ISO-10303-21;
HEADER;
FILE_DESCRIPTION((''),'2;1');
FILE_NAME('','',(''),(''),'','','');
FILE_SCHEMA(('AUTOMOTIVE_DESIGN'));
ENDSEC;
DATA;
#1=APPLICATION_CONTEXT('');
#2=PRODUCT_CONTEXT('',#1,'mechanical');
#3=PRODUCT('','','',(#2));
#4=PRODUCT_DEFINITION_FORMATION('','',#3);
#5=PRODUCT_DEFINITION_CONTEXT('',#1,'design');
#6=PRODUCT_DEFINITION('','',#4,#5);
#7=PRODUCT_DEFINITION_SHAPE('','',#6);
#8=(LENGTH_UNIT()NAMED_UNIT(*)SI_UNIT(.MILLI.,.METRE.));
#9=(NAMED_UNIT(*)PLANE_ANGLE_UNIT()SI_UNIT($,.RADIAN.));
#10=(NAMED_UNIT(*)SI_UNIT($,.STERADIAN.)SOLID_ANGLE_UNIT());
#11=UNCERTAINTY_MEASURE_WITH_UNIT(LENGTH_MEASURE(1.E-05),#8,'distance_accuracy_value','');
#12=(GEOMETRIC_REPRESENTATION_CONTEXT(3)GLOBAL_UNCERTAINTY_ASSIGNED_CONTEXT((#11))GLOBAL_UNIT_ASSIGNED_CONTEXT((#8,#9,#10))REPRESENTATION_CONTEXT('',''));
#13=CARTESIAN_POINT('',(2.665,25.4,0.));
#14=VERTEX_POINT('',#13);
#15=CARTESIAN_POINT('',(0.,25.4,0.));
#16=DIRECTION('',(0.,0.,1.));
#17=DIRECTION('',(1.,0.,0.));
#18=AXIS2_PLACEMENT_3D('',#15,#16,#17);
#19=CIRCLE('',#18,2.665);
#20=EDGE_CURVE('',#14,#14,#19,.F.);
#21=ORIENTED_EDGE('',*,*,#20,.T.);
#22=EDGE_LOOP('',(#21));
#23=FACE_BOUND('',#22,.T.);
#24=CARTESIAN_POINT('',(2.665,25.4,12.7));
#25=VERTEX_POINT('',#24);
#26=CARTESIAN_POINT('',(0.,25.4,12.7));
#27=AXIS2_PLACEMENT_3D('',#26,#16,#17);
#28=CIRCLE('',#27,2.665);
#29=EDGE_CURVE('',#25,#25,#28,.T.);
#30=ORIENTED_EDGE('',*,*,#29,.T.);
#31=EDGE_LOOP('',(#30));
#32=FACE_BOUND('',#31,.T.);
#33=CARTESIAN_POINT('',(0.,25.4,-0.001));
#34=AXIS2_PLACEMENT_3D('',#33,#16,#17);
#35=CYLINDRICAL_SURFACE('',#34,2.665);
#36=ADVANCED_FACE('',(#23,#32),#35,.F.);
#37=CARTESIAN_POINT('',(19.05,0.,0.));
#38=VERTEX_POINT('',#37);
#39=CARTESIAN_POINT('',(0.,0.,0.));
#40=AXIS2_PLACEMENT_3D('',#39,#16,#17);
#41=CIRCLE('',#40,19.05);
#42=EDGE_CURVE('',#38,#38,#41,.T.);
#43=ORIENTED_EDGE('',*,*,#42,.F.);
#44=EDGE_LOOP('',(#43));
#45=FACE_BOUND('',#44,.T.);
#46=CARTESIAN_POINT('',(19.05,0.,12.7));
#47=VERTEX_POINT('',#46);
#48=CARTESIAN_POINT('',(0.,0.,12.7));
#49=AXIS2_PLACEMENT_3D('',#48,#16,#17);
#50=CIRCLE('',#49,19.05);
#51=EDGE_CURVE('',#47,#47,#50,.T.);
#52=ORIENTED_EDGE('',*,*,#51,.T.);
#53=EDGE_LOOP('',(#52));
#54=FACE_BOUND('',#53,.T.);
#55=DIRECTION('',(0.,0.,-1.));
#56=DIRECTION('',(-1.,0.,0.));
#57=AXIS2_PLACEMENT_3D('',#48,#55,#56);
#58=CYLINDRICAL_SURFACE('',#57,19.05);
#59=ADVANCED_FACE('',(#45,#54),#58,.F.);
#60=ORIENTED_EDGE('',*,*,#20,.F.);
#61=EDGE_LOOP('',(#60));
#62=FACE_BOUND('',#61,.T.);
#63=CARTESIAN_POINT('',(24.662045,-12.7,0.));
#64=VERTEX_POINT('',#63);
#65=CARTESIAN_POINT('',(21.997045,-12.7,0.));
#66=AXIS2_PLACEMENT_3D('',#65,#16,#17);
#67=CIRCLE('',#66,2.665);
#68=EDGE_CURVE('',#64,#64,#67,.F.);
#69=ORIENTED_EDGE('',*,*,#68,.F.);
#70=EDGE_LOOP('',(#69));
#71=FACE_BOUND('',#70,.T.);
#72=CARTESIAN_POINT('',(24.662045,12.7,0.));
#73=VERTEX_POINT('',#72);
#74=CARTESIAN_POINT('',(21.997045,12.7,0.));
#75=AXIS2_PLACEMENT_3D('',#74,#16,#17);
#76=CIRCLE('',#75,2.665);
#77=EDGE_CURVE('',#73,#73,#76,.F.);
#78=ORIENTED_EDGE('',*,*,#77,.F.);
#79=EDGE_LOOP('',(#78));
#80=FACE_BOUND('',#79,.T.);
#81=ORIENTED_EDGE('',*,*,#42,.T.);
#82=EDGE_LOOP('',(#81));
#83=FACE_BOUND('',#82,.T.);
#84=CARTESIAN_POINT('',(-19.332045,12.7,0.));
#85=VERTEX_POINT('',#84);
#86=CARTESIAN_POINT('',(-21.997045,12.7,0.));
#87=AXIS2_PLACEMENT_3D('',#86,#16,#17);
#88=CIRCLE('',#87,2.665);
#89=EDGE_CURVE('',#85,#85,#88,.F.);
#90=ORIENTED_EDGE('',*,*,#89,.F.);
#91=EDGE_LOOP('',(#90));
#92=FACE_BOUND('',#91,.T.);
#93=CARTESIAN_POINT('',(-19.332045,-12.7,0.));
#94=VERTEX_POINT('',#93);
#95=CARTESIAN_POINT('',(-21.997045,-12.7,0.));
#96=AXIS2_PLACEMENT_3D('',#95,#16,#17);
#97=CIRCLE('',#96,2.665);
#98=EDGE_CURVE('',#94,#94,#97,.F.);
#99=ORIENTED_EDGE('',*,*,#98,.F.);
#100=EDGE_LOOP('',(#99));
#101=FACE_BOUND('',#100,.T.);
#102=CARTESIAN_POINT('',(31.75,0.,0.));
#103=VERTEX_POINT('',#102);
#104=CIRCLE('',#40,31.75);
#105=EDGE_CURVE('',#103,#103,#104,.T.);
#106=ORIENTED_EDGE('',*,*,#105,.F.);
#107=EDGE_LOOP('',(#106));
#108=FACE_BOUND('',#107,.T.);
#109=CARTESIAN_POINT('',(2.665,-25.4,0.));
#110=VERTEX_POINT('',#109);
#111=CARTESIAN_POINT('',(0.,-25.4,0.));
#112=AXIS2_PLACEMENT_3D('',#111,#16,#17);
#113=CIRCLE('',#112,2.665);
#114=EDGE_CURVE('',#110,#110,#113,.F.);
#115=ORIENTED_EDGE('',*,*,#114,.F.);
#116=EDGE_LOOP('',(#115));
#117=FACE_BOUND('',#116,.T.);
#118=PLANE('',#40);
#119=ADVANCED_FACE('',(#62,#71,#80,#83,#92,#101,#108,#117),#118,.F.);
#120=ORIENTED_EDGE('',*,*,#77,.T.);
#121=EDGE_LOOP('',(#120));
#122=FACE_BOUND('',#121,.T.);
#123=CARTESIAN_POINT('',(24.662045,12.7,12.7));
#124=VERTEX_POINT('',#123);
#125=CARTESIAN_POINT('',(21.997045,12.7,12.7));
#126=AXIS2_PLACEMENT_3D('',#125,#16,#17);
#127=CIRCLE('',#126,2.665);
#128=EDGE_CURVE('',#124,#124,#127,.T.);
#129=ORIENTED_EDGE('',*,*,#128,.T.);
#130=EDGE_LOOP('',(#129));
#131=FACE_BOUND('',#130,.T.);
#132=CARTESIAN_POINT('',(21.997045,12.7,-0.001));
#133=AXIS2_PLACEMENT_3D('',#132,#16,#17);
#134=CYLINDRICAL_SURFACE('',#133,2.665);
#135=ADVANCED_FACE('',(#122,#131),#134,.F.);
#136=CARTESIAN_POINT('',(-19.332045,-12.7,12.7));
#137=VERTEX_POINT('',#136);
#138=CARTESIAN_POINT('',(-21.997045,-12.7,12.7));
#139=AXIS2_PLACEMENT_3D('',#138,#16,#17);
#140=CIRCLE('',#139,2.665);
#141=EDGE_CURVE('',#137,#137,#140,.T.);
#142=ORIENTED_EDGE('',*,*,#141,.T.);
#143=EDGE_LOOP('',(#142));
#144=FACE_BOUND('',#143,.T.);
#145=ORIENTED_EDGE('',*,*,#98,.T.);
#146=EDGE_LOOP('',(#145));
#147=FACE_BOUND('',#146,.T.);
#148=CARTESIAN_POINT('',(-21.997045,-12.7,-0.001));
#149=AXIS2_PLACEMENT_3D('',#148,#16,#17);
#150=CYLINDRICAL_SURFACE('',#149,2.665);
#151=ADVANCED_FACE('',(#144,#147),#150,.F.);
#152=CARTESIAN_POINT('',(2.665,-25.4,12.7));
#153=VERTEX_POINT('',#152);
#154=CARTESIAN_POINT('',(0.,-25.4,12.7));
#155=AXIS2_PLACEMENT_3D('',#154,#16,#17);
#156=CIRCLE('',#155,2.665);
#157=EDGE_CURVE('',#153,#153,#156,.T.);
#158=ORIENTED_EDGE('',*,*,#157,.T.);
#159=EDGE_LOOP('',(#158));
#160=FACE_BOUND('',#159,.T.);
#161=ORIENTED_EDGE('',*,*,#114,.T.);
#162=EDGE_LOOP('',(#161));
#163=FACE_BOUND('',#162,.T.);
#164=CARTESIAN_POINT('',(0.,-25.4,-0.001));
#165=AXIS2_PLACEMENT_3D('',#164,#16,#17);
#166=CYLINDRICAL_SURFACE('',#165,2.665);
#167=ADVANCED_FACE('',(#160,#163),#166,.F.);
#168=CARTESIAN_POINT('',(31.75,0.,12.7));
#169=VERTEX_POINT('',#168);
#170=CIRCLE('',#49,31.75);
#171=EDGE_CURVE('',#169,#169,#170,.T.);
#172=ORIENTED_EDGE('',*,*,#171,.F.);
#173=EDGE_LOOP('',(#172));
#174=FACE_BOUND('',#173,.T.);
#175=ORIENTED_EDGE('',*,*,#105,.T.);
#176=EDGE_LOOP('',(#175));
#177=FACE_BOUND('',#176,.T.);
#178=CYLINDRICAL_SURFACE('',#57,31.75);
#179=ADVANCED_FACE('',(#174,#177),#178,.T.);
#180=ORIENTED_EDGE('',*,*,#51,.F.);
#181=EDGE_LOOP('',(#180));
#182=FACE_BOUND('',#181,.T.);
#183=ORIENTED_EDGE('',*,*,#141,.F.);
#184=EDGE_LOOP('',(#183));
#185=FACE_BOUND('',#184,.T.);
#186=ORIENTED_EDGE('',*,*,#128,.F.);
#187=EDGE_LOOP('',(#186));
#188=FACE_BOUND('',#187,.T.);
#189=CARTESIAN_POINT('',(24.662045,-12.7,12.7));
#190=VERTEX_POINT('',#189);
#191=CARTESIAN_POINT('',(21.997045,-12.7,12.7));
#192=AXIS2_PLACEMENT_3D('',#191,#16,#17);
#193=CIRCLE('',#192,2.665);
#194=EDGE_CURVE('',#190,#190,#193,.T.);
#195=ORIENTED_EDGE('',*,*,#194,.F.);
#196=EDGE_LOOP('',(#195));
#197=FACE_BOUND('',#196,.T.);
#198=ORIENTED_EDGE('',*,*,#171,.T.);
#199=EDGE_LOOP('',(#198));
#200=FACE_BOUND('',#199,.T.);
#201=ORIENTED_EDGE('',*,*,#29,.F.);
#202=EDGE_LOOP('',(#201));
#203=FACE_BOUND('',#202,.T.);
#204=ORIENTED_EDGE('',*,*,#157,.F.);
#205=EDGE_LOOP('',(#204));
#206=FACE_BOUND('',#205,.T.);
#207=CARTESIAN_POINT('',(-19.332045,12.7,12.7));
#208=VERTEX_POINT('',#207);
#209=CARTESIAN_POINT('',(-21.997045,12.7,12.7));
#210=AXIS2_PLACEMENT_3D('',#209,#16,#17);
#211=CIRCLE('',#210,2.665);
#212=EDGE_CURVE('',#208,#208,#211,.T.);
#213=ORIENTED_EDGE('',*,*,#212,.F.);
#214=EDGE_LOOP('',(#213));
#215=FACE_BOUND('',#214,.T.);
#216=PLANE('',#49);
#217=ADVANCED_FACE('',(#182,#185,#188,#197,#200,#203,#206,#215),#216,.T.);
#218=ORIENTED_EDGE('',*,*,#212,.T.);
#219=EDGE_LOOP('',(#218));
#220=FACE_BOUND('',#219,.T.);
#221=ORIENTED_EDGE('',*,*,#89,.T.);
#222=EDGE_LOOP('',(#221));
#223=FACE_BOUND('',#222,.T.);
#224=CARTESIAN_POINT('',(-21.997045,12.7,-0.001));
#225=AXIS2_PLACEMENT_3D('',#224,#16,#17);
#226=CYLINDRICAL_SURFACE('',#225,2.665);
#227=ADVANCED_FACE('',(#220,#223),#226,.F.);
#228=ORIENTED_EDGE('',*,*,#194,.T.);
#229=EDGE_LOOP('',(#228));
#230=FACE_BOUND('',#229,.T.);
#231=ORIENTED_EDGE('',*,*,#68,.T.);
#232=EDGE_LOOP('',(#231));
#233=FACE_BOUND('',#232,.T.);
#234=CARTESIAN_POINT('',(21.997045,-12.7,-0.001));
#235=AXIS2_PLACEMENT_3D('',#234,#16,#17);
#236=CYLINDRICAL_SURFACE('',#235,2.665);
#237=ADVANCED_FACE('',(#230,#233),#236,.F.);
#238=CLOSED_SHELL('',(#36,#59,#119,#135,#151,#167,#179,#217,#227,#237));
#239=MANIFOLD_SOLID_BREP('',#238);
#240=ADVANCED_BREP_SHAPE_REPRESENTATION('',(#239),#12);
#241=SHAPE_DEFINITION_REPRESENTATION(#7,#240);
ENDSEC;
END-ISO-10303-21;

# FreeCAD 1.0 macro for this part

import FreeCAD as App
import Part
import Sketcher
Q = App.Units.Quantity

doc = App.newDocument("Part")
body = doc.addObject("PartDesign::Body", "Body")

sketch1 = doc.addObject("Sketcher::SketchObject", "Sketch")
body.addObject(sketch1)
sketch1.AttachmentSupport = (doc.XY_Plane, [""])
sketch1.MapMode = "FlatFace"
sketch1.addGeometry(Part.Circle(App.Vector(0, 0, 0), App.Vector(0, 0, 1), 32), False)
sketch1.addGeometry(Part.Circle(App.Vector(0, 0, 0), App.Vector(0, 0, 1), 19), False)
sketch1.addConstraint(Sketcher.Constraint("Coincident", 0, 3, -1, 1))
sketch1.addConstraint(Sketcher.Constraint("Coincident", 1, 3, -1, 1))
sketch1.addConstraint(Sketcher.Constraint("Diameter", 0, Q("2.5 in")))
sketch1.addConstraint(Sketcher.Constraint("Diameter", 1, Q("1.5 in")))
pad1 = doc.addObject("PartDesign::Pad", "Pad")
body.addObject(pad1)
pad1.Profile = sketch1
pad1.Length = Q("0.5 in")

sketch2 = doc.addObject("Sketcher::SketchObject", "Sketch001")
body.addObject(sketch2)
sketch2.AttachmentSupport = (doc.XY_Plane, [""])
sketch2.MapMode = "FlatFace"
sketch2.AttachmentOffset = App.Placement(App.Vector(0, 0, 0.5 * 25.4), App.Rotation())
sketch2.addGeometry(Part.Circle(App.Vector(0, 25.4, 0), App.Vector(0, 0, 1), 2.7), False)
sketch2.addConstraint(Sketcher.Constraint("PointOnObject", 0, 3, -2))
sketch2.addConstraint(Sketcher.Constraint("DistanceY", -1, 1, 0, 3, Q("1 in")))
sketch2.addConstraint(Sketcher.Constraint("Diameter", 0, Q("5.33 mm")))
pocket1 = doc.addObject("PartDesign::Pocket", "Pocket")
body.addObject(pocket1)
pocket1.Profile = sketch2
pocket1.Type = "UpToFirst"

sketch3 = doc.addObject("Sketcher::SketchObject", "Sketch002")
body.addObject(sketch3)
sketch3.AttachmentSupport = (doc.XY_Plane, [""])
sketch3.MapMode = "FlatFace"
sketch3.AttachmentOffset = App.Placement(App.Vector(0, 0, 0.5 * 25.4), App.Rotation())
sketch3.addGeometry(Part.Circle(App.Vector(22, 12.7, 0), App.Vector(0, 0, 1), 2.7), False)
sketch3.addConstraint(Sketcher.Constraint("DistanceY", -1, 1, 0, 3, Q("0.5 in")))
sketch3.addConstraint(Sketcher.Constraint("Diameter", 0, Q("5.33 mm")))
sketch3.addConstraint(Sketcher.Constraint("DistanceX", -1, 1, 0, 3, Q("21.997045 mm")))
pocket2 = doc.addObject("PartDesign::Pocket", "Pocket001")
body.addObject(pocket2)
pocket2.Profile = sketch3
pocket2.Type = "UpToFirst"

sketch4 = doc.addObject("Sketcher::SketchObject", "Sketch003")
body.addObject(sketch4)
sketch4.AttachmentSupport = (doc.XY_Plane, [""])
sketch4.MapMode = "FlatFace"
sketch4.AttachmentOffset = App.Placement(App.Vector(0, 0, 0.5 * 25.4), App.Rotation())
sketch4.addGeometry(Part.Circle(App.Vector(22, -12.7, 0), App.Vector(0, 0, 1), 2.7), False)
sketch4.addConstraint(Sketcher.Constraint("DistanceY", 0, 3, -1, 1, Q("0.5 in")))
sketch4.addConstraint(Sketcher.Constraint("Diameter", 0, Q("5.33 mm")))
sketch4.addConstraint(Sketcher.Constraint("DistanceX", -1, 1, 0, 3, Q("21.997045 mm")))
pocket3 = doc.addObject("PartDesign::Pocket", "Pocket002")
body.addObject(pocket3)
pocket3.Profile = sketch4
pocket3.Type = "UpToFirst"

sketch5 = doc.addObject("Sketcher::SketchObject", "Sketch004")
body.addObject(sketch5)
sketch5.AttachmentSupport = (doc.XY_Plane, [""])
sketch5.MapMode = "FlatFace"
sketch5.AttachmentOffset = App.Placement(App.Vector(0, 0, 0.5 * 25.4), App.Rotation())
sketch5.addGeometry(Part.Circle(App.Vector(0, -25.4, 0), App.Vector(0, 0, 1), 2.7), False)
sketch5.addConstraint(Sketcher.Constraint("PointOnObject", 0, 3, -2))
sketch5.addConstraint(Sketcher.Constraint("DistanceY", 0, 3, -1, 1, Q("1 in")))
sketch5.addConstraint(Sketcher.Constraint("Diameter", 0, Q("5.33 mm")))
pocket4 = doc.addObject("PartDesign::Pocket", "Pocket003")
body.addObject(pocket4)
pocket4.Profile = sketch5
pocket4.Type = "UpToFirst"

sketch6 = doc.addObject("Sketcher::SketchObject", "Sketch005")
body.addObject(sketch6)
sketch6.AttachmentSupport = (doc.XY_Plane, [""])
sketch6.MapMode = "FlatFace"
sketch6.AttachmentOffset = App.Placement(App.Vector(0, 0, 0.5 * 25.4), App.Rotation())
sketch6.addGeometry(Part.Circle(App.Vector(-22, -12.7, 0), App.Vector(0, 0, 1), 2.7), False)
sketch6.addConstraint(Sketcher.Constraint("DistanceY", 0, 3, -1, 1, Q("0.5 in")))
sketch6.addConstraint(Sketcher.Constraint("Diameter", 0, Q("5.33 mm")))
sketch6.addConstraint(Sketcher.Constraint("DistanceX", 0, 3, -1, 1, Q("21.997045 mm")))
pocket5 = doc.addObject("PartDesign::Pocket", "Pocket004")
body.addObject(pocket5)
pocket5.Profile = sketch6
pocket5.Type = "UpToFirst"

sketch7 = doc.addObject("Sketcher::SketchObject", "Sketch006")
body.addObject(sketch7)
sketch7.AttachmentSupport = (doc.XY_Plane, [""])
sketch7.MapMode = "FlatFace"
sketch7.AttachmentOffset = App.Placement(App.Vector(0, 0, 0.5 * 25.4), App.Rotation())
sketch7.addGeometry(Part.Circle(App.Vector(-22, 12.7, 0), App.Vector(0, 0, 1), 2.7), False)
sketch7.addConstraint(Sketcher.Constraint("DistanceY", -1, 1, 0, 3, Q("0.5 in")))
sketch7.addConstraint(Sketcher.Constraint("Diameter", 0, Q("5.33 mm")))
sketch7.addConstraint(Sketcher.Constraint("DistanceX", 0, 3, -1, 1, Q("21.997045 mm")))
pocket6 = doc.addObject("PartDesign::Pocket", "Pocket005")
body.addObject(pocket6)
pocket6.Profile = sketch7
pocket6.Type = "UpToFirst"

doc.recompute()
